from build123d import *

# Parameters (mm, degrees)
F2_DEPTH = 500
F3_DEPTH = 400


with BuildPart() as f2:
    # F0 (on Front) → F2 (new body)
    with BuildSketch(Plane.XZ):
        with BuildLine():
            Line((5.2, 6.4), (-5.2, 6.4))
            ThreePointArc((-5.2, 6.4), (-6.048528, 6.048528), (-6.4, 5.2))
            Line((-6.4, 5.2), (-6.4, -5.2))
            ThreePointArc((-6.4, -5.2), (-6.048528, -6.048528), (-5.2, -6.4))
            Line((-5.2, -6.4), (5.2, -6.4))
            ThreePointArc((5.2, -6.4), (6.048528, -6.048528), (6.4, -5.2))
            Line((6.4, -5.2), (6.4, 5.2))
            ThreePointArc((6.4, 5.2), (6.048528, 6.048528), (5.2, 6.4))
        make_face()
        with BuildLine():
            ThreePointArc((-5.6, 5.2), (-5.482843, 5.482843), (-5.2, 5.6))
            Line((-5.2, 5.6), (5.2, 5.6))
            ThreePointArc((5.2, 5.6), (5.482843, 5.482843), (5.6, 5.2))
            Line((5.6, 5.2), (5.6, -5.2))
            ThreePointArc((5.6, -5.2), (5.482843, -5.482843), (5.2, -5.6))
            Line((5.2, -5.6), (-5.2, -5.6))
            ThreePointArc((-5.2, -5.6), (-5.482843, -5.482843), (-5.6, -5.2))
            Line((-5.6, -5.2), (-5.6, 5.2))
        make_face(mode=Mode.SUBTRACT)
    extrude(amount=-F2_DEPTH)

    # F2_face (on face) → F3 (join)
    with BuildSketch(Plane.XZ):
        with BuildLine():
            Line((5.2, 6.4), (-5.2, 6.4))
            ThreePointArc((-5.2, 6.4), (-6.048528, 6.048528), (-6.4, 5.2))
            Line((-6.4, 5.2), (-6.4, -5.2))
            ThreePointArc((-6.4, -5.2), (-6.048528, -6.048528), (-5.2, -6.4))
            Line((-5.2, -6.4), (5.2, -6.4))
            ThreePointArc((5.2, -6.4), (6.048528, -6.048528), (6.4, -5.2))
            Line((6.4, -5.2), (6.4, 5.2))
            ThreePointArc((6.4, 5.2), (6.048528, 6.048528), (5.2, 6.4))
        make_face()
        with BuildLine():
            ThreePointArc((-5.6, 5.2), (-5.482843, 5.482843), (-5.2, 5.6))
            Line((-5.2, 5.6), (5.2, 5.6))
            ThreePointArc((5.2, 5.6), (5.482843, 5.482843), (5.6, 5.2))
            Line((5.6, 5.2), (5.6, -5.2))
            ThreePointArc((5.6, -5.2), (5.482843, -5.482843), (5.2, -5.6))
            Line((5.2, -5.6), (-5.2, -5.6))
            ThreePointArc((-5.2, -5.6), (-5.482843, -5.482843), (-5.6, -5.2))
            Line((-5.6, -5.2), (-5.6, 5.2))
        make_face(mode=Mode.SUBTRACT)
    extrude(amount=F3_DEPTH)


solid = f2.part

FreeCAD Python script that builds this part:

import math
import FreeCAD as App
import Part
import Sketcher

doc = App.newDocument("Part")
body = doc.addObject("PartDesign::Body", "Body")

# Sketch on XZ plane
sketch1 = body.newObject("Sketcher::SketchObject", "Sketch")
sketch1.AttachmentSupport = (doc.getObject("XZ_Plane"), [""])
sketch1.MapMode = "FlatFace"
sketch1.addGeometry([
    Part.LineSegment(App.Vector(5.2, 6.4, 0), App.Vector(-5.2, 6.4, 0)),  # 0
    Part.ArcOfCircle(Part.Circle(App.Vector(-5.2, 5.2, 0), App.Vector(0, 0, 1), 1.2), math.radians(90), math.radians(180)),  # 1
    Part.LineSegment(App.Vector(-6.4, 5.2, 0), App.Vector(-6.4, -5.2, 0)),  # 2
    Part.ArcOfCircle(Part.Circle(App.Vector(-5.2, -5.2, 0), App.Vector(0, 0, 1), 1.2), math.radians(-180), math.radians(-90)),  # 3
    Part.LineSegment(App.Vector(-5.2, -6.4, 0), App.Vector(5.2, -6.4, 0)),  # 4
    Part.ArcOfCircle(Part.Circle(App.Vector(5.2, -5.2, 0), App.Vector(0, 0, 1), 1.2), math.radians(-90), math.radians(0)),  # 5
    Part.LineSegment(App.Vector(6.4, -5.2, 0), App.Vector(6.4, 5.2, 0)),  # 6
    Part.ArcOfCircle(Part.Circle(App.Vector(5.2, 5.2, 0), App.Vector(0, 0, 1), 1.2), math.radians(0), math.radians(90)),  # 7
    Part.LineSegment(App.Vector(-5.6, -5.2, 0), App.Vector(-5.6, 5.2, 0)),  # 8
    Part.ArcOfCircle(Part.Circle(App.Vector(-5.2, 5.2, 0), App.Vector(0, 0, 1), 0.4), math.radians(90), math.radians(180)),  # 9
    Part.LineSegment(App.Vector(-5.2, 5.6, 0), App.Vector(5.2, 5.6, 0)),  # 10
    Part.ArcOfCircle(Part.Circle(App.Vector(5.2, 5.2, 0), App.Vector(0, 0, 1), 0.4), math.radians(0), math.radians(90)),  # 11
    Part.LineSegment(App.Vector(5.6, 5.2, 0), App.Vector(5.6, -5.2, 0)),  # 12
    Part.ArcOfCircle(Part.Circle(App.Vector(5.2, -5.2, 0), App.Vector(0, 0, 1), 0.4), math.radians(-90), math.radians(0)),  # 13
    Part.LineSegment(App.Vector(5.2, -5.6, 0), App.Vector(-5.2, -5.6, 0)),  # 14
    Part.ArcOfCircle(Part.Circle(App.Vector(-5.2, -5.2, 0), App.Vector(0, 0, 1), 0.4), math.radians(180), math.radians(270)),  # 15
], False)
sketch1.addConstraint([
    Sketcher.Constraint("Tangent", 0, 2, 1, 1),
    Sketcher.Constraint("Tangent", 1, 2, 2, 1),
    Sketcher.Constraint("Tangent", 2, 2, 3, 1),
    Sketcher.Constraint("Tangent", 3, 2, 4, 1),
    Sketcher.Constraint("Tangent", 4, 2, 5, 1),
    Sketcher.Constraint("Tangent", 5, 2, 6, 1),
    Sketcher.Constraint("Tangent", 6, 2, 7, 1),
    Sketcher.Constraint("Tangent", 7, 2, 0, 1),
    Sketcher.Constraint("Coincident", 8, 2, 9, 2),
    Sketcher.Constraint("Coincident", 9, 1, 10, 1),
    Sketcher.Constraint("Coincident", 10, 2, 11, 2),
    Sketcher.Constraint("Coincident", 11, 1, 12, 1),
    Sketcher.Constraint("Coincident", 12, 2, 13, 2),
    Sketcher.Constraint("Coincident", 13, 1, 14, 1),
    Sketcher.Constraint("Coincident", 14, 2, 15, 2),
    Sketcher.Constraint("Coincident", 15, 1, 8, 1),
    Sketcher.Constraint("Horizontal", 0),
    Sketcher.Constraint("Vertical", 2),
    Sketcher.Constraint("Horizontal", 4),
    Sketcher.Constraint("Vertical", 6),
    Sketcher.Constraint("Vertical", 8),
    Sketcher.Constraint("Horizontal", 10),
    Sketcher.Constraint("Vertical", 12),
    Sketcher.Constraint("Horizontal", 14),
    Sketcher.Constraint("Coincident", 9, 3, 1, 3),
    Sketcher.Constraint("Coincident", 11, 3, 7, 3),
    Sketcher.Constraint("Coincident", 13, 3, 5, 3),
    Sketcher.Constraint("Equal", 1, 3),
    Sketcher.Constraint("Equal", 3, 5),
    Sketcher.Constraint("Equal", 5, 7),
    Sketcher.Constraint("Equal", 13, 15),
    Sketcher.Constraint("Symmetric", 1, 3, 5, 3, -1, 1),
    Sketcher.Constraint("Horizontal", 6, 2, 8, 2),
    Sketcher.Constraint("Horizontal", 8, 2, 11, 1),
    Sketcher.Constraint("Horizontal", 5, 2, 12, 2),
    Sketcher.Constraint("Horizontal", 12, 2, 15, 1),
    Sketcher.Constraint("Vertical", 3, 2, 9, 1),
    Sketcher.Constraint("Vertical", 7, 2, 10, 2),
    Sketcher.Constraint("Vertical", 10, 2, 13, 1),
    Sketcher.Constraint("Vertical", 9, 1, 14, 2),
    Sketcher.Constraint("Equal", 14, 2),
    Sketcher.Constraint("Radius", 1, 1.2),
    Sketcher.Constraint("Radius", 9, 0.399999),
    Sketcher.Constraint("DistanceX", 0, 2, 0, 1, 10.4),
])
pad1 = body.newObject("PartDesign::Pad", "Pad")
pad1.Profile = sketch1
pad1.Length = 500
pad1.Reversed = True

# Sketch on XZ plane
sketch2 = body.newObject("Sketcher::SketchObject", "Sketch001")
sketch2.AttachmentSupport = (doc.getObject("XZ_Plane"), [""])
sketch2.MapMode = "FlatFace"
sketch2.addGeometry([
    Part.LineSegment(App.Vector(5.2, 6.4, 0), App.Vector(-5.2, 6.4, 0)),  # 0
    Part.ArcOfCircle(Part.Circle(App.Vector(-5.2, 5.2, 0), App.Vector(0, 0, 1), 1.2), math.radians(90), math.radians(180)),  # 1
    Part.LineSegment(App.Vector(-6.4, 5.2, 0), App.Vector(-6.4, -5.2, 0)),  # 2
    Part.ArcOfCircle(Part.Circle(App.Vector(-5.2, -5.2, 0), App.Vector(0, 0, 1), 1.2), math.radians(-180), math.radians(-90)),  # 3
    Part.LineSegment(App.Vector(-5.2, -6.4, 0), App.Vector(5.2, -6.4, 0)),  # 4
    Part.ArcOfCircle(Part.Circle(App.Vector(5.2, -5.2, 0), App.Vector(0, 0, 1), 1.2), math.radians(-90), math.radians(0)),  # 5
    Part.LineSegment(App.Vector(6.4, -5.2, 0), App.Vector(6.4, 5.2, 0)),  # 6
    Part.ArcOfCircle(Part.Circle(App.Vector(5.2, 5.2, 0), App.Vector(0, 0, 1), 1.2), math.radians(0), math.radians(90)),  # 7
    Part.LineSegment(App.Vector(-5.6, -5.2, 0), App.Vector(-5.6, 5.2, 0)),  # 8
    Part.ArcOfCircle(Part.Circle(App.Vector(-5.2, 5.2, 0), App.Vector(0, 0, 1), 0.4), math.radians(90), math.radians(180)),  # 9
    Part.LineSegment(App.Vector(-5.2, 5.6, 0), App.Vector(5.2, 5.6, 0)),  # 10
    Part.ArcOfCircle(Part.Circle(App.Vector(5.2, 5.2, 0), App.Vector(0, 0, 1), 0.4), math.radians(0), math.radians(90)),  # 11
    Part.LineSegment(App.Vector(5.6, 5.2, 0), App.Vector(5.6, -5.2, 0)),  # 12
    Part.ArcOfCircle(Part.Circle(App.Vector(5.2, -5.2, 0), App.Vector(0, 0, 1), 0.4), math.radians(-90), math.radians(0)),  # 13
    Part.LineSegment(App.Vector(5.2, -5.6, 0), App.Vector(-5.2, -5.6, 0)),  # 14
    Part.ArcOfCircle(Part.Circle(App.Vector(-5.2, -5.2, 0), App.Vector(0, 0, 1), 0.4), math.radians(180), math.radians(270)),  # 15
], False)
sketch2.addConstraint([
    Sketcher.Constraint("Tangent", 0, 2, 1, 1),
    Sketcher.Constraint("Tangent", 1, 2, 2, 1),
    Sketcher.Constraint("Tangent", 2, 2, 3, 1),
    Sketcher.Constraint("Tangent", 3, 2, 4, 1),
    Sketcher.Constraint("Tangent", 4, 2, 5, 1),
    Sketcher.Constraint("Tangent", 5, 2, 6, 1),
    Sketcher.Constraint("Tangent", 6, 2, 7, 1),
    Sketcher.Constraint("Tangent", 7, 2, 0, 1),
    Sketcher.Constraint("Coincident", 8, 2, 9, 2),
    Sketcher.Constraint("Coincident", 9, 1, 10, 1),
    Sketcher.Constraint("Coincident", 10, 2, 11, 2),
    Sketcher.Constraint("Coincident", 11, 1, 12, 1),
    Sketcher.Constraint("Coincident", 12, 2, 13, 2),
    Sketcher.Constraint("Coincident", 13, 1, 14, 1),
    Sketcher.Constraint("Coincident", 14, 2, 15, 2),
    Sketcher.Constraint("Coincident", 15, 1, 8, 1),
    Sketcher.Constraint("Horizontal", 0),
    Sketcher.Constraint("Vertical", 2),
    Sketcher.Constraint("Horizontal", 4),
    Sketcher.Constraint("Vertical", 6),
    Sketcher.Constraint("Vertical", 8),
    Sketcher.Constraint("Horizontal", 10),
    Sketcher.Constraint("Vertical", 12),
    Sketcher.Constraint("Horizontal", 14),
    Sketcher.Constraint("Coincident", 9, 3, 1, 3),
    Sketcher.Constraint("Coincident", 11, 3, 7, 3),
    Sketcher.Constraint("Coincident", 13, 3, 5, 3),
    Sketcher.Constraint("Equal", 1, 3),
    Sketcher.Constraint("Equal", 3, 5),
    Sketcher.Constraint("Equal", 5, 7),
    Sketcher.Constraint("Equal", 13, 15),
    Sketcher.Constraint("Symmetric", 1, 3, 5, 3, -1, 1),
    Sketcher.Constraint("Horizontal", 6, 2, 8, 2),
    Sketcher.Constraint("Horizontal", 8, 2, 11, 1),
    Sketcher.Constraint("Horizontal", 5, 2, 12, 2),
    Sketcher.Constraint("Horizontal", 12, 2, 15, 1),
    Sketcher.Constraint("Vertical", 3, 2, 9, 1),
    Sketcher.Constraint("Vertical", 7, 2, 10, 2),
    Sketcher.Constraint("Vertical", 10, 2, 13, 1),
    Sketcher.Constraint("Vertical", 9, 1, 14, 2),
    Sketcher.Constraint("Equal", 14, 2),
    Sketcher.Constraint("Radius", 1, 1.2),
    Sketcher.Constraint("Radius", 9, 0.399999),
    Sketcher.Constraint("DistanceX", 0, 2, 0, 1, 10.4),
])
pad2 = body.newObject("PartDesign::Pad", "Pad001")
pad2.Profile = sketch2
pad2.Length = 400

doc.recompute()
